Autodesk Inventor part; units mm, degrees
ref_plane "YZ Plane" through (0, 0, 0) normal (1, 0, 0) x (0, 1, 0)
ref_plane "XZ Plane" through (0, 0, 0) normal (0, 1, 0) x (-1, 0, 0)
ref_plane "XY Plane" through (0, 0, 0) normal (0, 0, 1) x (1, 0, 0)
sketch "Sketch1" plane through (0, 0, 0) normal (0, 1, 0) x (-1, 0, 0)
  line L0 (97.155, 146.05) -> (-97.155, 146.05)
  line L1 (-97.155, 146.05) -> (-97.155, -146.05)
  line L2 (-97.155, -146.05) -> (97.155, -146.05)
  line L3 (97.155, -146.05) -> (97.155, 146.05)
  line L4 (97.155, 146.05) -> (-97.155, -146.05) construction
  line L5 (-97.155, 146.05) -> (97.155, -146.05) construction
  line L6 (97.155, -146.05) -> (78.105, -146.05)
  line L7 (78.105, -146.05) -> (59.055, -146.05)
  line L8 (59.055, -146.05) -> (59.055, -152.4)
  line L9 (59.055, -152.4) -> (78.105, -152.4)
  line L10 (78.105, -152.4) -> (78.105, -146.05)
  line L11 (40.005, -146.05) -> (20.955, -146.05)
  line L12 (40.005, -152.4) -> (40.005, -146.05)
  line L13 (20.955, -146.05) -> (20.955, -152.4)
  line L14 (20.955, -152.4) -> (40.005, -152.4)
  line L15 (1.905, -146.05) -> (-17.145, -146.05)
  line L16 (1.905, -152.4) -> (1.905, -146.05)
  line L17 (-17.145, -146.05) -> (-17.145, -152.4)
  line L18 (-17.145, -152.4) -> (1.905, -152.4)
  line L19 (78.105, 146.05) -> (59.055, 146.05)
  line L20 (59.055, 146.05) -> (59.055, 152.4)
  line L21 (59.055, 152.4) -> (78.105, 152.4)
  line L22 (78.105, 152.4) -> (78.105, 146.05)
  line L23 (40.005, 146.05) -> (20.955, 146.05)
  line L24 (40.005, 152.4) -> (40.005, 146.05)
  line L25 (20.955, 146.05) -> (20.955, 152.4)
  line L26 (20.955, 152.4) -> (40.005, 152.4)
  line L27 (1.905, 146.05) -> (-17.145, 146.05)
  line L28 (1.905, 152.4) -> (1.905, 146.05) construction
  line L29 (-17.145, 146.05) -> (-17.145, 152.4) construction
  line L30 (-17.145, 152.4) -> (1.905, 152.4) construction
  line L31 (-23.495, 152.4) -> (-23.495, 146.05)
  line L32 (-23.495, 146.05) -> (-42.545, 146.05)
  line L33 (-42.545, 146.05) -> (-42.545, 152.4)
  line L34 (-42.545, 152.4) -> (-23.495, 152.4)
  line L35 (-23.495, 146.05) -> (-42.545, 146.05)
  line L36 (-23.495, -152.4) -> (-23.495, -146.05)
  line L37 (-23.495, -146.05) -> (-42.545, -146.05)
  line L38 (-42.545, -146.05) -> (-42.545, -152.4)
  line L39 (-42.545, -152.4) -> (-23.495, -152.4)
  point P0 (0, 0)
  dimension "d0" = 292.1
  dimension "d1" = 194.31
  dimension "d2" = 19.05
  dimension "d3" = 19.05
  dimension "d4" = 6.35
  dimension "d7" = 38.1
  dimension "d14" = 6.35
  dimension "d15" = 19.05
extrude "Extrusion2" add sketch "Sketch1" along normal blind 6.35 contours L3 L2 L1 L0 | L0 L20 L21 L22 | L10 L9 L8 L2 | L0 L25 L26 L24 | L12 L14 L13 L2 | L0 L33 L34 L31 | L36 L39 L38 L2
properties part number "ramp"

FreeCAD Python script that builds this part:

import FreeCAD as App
import Part
import Sketcher
from FreeCAD import Vector
Q = App.Units.Quantity

doc = App.newDocument("Part")
body = doc.addObject("PartDesign::Body", "Body")

# Sketch on XZ plane
sketch1 = doc.addObject("Sketcher::SketchObject", "Sketch")
body.addObject(sketch1)
sketch1.AttachmentSupport = (doc.XZ_Plane, [""])
sketch1.MapMode = "FlatFace"
sketch1.addGeometry([
    Part.LineSegment(Vector(-97, -146, 0), Vector(-97, 146, 0)),  # 0
    Part.LineSegment(Vector(-97, 146, 0), Vector(-78, 146, 0)),  # 1
    Part.LineSegment(Vector(-78, 146, 0), Vector(-78, 152, 0)),  # 2
    Part.LineSegment(Vector(-78, 152, 0), Vector(-59, 152, 0)),  # 3
    Part.LineSegment(Vector(-59, 152, 0), Vector(-59, 146, 0)),  # 4
    Part.LineSegment(Vector(-59, 146, 0), Vector(-40, 146, 0)),  # 5
    Part.LineSegment(Vector(-40, 146, 0), Vector(-40, 152, 0)),  # 6
    Part.LineSegment(Vector(-40, 152, 0), Vector(-21, 152, 0)),  # 7
    Part.LineSegment(Vector(-21, 152, 0), Vector(-21, 146, 0)),  # 8
    Part.LineSegment(Vector(-21, 146, 0), Vector(23, 146, 0)),  # 9
    Part.LineSegment(Vector(23, 146, 0), Vector(23, 152, 0)),  # 10
    Part.LineSegment(Vector(23, 152, 0), Vector(43, 152, 0)),  # 11
    Part.LineSegment(Vector(43, 152, 0), Vector(43, 146, 0)),  # 12
    Part.LineSegment(Vector(43, 146, 0), Vector(97, 146, 0)),  # 13
    Part.LineSegment(Vector(97, 146, 0), Vector(97, -146, 0)),  # 14
    Part.LineSegment(Vector(97, -146, 0), Vector(43, -146, 0)),  # 15
    Part.LineSegment(Vector(43, -146, 0), Vector(43, -152, 0)),  # 16
    Part.LineSegment(Vector(43, -152, 0), Vector(23, -152, 0)),  # 17
    Part.LineSegment(Vector(23, -152, 0), Vector(23, -146, 0)),  # 18
    Part.LineSegment(Vector(23, -146, 0), Vector(-21, -146, 0)),  # 19
    Part.LineSegment(Vector(-21, -146, 0), Vector(-21, -152, 0)),  # 20
    Part.LineSegment(Vector(-21, -152, 0), Vector(-40, -152, 0)),  # 21
    Part.LineSegment(Vector(-40, -152, 0), Vector(-40, -146, 0)),  # 22
    Part.LineSegment(Vector(-40, -146, 0), Vector(-59, -146, 0)),  # 23
    Part.LineSegment(Vector(-59, -146, 0), Vector(-59, -152, 0)),  # 24
    Part.LineSegment(Vector(-59, -152, 0), Vector(-78, -152, 0)),  # 25
    Part.LineSegment(Vector(-78, -152, 0), Vector(-78, -146, 0)),  # 26
    Part.LineSegment(Vector(-78, -146, 0), Vector(-97, -146, 0)),  # 27
], False)
sketch1.addConstraint([
    Sketcher.Constraint("Coincident", 0, 2, 1, 1),
    Sketcher.Constraint("Coincident", 1, 2, 2, 1),
    Sketcher.Constraint("Coincident", 2, 2, 3, 1),
    Sketcher.Constraint("Coincident", 3, 2, 4, 1),
    Sketcher.Constraint("Coincident", 4, 2, 5, 1),
    Sketcher.Constraint("Coincident", 5, 2, 6, 1),
    Sketcher.Constraint("Coincident", 6, 2, 7, 1),
    Sketcher.Constraint("Coincident", 7, 2, 8, 1),
    Sketcher.Constraint("Coincident", 8, 2, 9, 1),
    Sketcher.Constraint("Coincident", 9, 2, 10, 1),
    Sketcher.Constraint("Coincident", 10, 2, 11, 1),
    Sketcher.Constraint("Coincident", 11, 2, 12, 1),
    Sketcher.Constraint("Coincident", 12, 2, 13, 1),
    Sketcher.Constraint("Coincident", 13, 2, 14, 1),
    Sketcher.Constraint("Coincident", 14, 2, 15, 1),
    Sketcher.Constraint("Coincident", 15, 2, 16, 1),
    Sketcher.Constraint("Coincident", 16, 2, 17, 1),
    Sketcher.Constraint("Coincident", 17, 2, 18, 1),
    Sketcher.Constraint("Coincident", 18, 2, 19, 1),
    Sketcher.Constraint("Coincident", 19, 2, 20, 1),
    Sketcher.Constraint("Coincident", 20, 2, 21, 1),
    Sketcher.Constraint("Coincident", 21, 2, 22, 1),
    Sketcher.Constraint("Coincident", 22, 2, 23, 1),
    Sketcher.Constraint("Coincident", 23, 2, 24, 1),
    Sketcher.Constraint("Coincident", 24, 2, 25, 1),
    Sketcher.Constraint("Coincident", 25, 2, 26, 1),
    Sketcher.Constraint("Coincident", 26, 2, 27, 1),
    Sketcher.Constraint("Coincident", 27, 2, 0, 1),
    Sketcher.Constraint("Vertical", 0),
    Sketcher.Constraint("Horizontal", 1),
    Sketcher.Constraint("Vertical", 2),
    Sketcher.Constraint("Horizontal", 3),
    Sketcher.Constraint("Vertical", 4),
    Sketcher.Constraint("Horizontal", 5),
    Sketcher.Constraint("Vertical", 6),
    Sketcher.Constraint("Horizontal", 7),
    Sketcher.Constraint("Vertical", 8),
    Sketcher.Constraint("Horizontal", 9),
    Sketcher.Constraint("Vertical", 10),
    Sketcher.Constraint("Horizontal", 11),
    Sketcher.Constraint("Vertical", 12),
    Sketcher.Constraint("Horizontal", 13),
    Sketcher.Constraint("Vertical", 14),
    Sketcher.Constraint("Horizontal", 15),
    Sketcher.Constraint("Vertical", 16),
    Sketcher.Constraint("Horizontal", 17),
    Sketcher.Constraint("Vertical", 18),
    Sketcher.Constraint("Horizontal", 19),
    Sketcher.Constraint("Vertical", 20),
    Sketcher.Constraint("Horizontal", 21),
    Sketcher.Constraint("Vertical", 22),
    Sketcher.Constraint("Horizontal", 23),
    Sketcher.Constraint("Vertical", 24),
    Sketcher.Constraint("Horizontal", 25),
    Sketcher.Constraint("Vertical", 26),
    Sketcher.Constraint("Horizontal", 27),
    Sketcher.Constraint("Symmetric", 0, 2, 14, 2, -1, 1),
    Sketcher.Constraint("Symmetric", 12, 2, 15, 2, -1),
    Sketcher.Constraint("Symmetric", 10, 2, 17, 2, -1),
    Sketcher.Constraint("Symmetric", 8, 2, 19, 2, -1),
    Sketcher.Constraint("Symmetric", 6, 2, 21, 2, -1),
    Sketcher.Constraint("Symmetric", 4, 2, 23, 2, -1),
    Sketcher.Constraint("Symmetric", 2, 2, 25, 2, -1),
    Sketcher.Constraint("Horizontal", 1, 2, 4, 2),
    Sketcher.Constraint("Horizontal", 3, 2, 6, 2),
    Sketcher.Constraint("Horizontal", 5, 2, 8, 2),
    Sketcher.Constraint("Horizontal", 7, 2, 10, 2),
    Sketcher.Constraint("Horizontal", 23, 2, 26, 2),
    Sketcher.Constraint("Equal", 1, 3),
    Sketcher.Constraint("Equal", 3, 5),
    Sketcher.Constraint("Equal", 5, 7),
    Sketcher.Constraint("Equal", 7, 11),
    Sketcher.Constraint("DistanceY", 0, 1, 0, 2, Q("11.5 in")),
    Sketcher.Constraint("DistanceX", 1, 1, 1, 2, Q("0.75 in")),
    Sketcher.Constraint("DistanceY", 2, 1, 2, 2, Q("0.25 in")),
    Sketcher.Constraint("DistanceX", 9, 1, 9, 2, Q("1.75 in")),
    Sketcher.Constraint("DistanceX", 13, 1, 13, 2, Q("2.15 in")),
])
pad1 = doc.addObject("PartDesign::Pad", "Pad")
body.addObject(pad1)
pad1.Profile = sketch1
pad1.Length = Q("0.25 in")
pad1.Reversed = True

doc.recompute()
